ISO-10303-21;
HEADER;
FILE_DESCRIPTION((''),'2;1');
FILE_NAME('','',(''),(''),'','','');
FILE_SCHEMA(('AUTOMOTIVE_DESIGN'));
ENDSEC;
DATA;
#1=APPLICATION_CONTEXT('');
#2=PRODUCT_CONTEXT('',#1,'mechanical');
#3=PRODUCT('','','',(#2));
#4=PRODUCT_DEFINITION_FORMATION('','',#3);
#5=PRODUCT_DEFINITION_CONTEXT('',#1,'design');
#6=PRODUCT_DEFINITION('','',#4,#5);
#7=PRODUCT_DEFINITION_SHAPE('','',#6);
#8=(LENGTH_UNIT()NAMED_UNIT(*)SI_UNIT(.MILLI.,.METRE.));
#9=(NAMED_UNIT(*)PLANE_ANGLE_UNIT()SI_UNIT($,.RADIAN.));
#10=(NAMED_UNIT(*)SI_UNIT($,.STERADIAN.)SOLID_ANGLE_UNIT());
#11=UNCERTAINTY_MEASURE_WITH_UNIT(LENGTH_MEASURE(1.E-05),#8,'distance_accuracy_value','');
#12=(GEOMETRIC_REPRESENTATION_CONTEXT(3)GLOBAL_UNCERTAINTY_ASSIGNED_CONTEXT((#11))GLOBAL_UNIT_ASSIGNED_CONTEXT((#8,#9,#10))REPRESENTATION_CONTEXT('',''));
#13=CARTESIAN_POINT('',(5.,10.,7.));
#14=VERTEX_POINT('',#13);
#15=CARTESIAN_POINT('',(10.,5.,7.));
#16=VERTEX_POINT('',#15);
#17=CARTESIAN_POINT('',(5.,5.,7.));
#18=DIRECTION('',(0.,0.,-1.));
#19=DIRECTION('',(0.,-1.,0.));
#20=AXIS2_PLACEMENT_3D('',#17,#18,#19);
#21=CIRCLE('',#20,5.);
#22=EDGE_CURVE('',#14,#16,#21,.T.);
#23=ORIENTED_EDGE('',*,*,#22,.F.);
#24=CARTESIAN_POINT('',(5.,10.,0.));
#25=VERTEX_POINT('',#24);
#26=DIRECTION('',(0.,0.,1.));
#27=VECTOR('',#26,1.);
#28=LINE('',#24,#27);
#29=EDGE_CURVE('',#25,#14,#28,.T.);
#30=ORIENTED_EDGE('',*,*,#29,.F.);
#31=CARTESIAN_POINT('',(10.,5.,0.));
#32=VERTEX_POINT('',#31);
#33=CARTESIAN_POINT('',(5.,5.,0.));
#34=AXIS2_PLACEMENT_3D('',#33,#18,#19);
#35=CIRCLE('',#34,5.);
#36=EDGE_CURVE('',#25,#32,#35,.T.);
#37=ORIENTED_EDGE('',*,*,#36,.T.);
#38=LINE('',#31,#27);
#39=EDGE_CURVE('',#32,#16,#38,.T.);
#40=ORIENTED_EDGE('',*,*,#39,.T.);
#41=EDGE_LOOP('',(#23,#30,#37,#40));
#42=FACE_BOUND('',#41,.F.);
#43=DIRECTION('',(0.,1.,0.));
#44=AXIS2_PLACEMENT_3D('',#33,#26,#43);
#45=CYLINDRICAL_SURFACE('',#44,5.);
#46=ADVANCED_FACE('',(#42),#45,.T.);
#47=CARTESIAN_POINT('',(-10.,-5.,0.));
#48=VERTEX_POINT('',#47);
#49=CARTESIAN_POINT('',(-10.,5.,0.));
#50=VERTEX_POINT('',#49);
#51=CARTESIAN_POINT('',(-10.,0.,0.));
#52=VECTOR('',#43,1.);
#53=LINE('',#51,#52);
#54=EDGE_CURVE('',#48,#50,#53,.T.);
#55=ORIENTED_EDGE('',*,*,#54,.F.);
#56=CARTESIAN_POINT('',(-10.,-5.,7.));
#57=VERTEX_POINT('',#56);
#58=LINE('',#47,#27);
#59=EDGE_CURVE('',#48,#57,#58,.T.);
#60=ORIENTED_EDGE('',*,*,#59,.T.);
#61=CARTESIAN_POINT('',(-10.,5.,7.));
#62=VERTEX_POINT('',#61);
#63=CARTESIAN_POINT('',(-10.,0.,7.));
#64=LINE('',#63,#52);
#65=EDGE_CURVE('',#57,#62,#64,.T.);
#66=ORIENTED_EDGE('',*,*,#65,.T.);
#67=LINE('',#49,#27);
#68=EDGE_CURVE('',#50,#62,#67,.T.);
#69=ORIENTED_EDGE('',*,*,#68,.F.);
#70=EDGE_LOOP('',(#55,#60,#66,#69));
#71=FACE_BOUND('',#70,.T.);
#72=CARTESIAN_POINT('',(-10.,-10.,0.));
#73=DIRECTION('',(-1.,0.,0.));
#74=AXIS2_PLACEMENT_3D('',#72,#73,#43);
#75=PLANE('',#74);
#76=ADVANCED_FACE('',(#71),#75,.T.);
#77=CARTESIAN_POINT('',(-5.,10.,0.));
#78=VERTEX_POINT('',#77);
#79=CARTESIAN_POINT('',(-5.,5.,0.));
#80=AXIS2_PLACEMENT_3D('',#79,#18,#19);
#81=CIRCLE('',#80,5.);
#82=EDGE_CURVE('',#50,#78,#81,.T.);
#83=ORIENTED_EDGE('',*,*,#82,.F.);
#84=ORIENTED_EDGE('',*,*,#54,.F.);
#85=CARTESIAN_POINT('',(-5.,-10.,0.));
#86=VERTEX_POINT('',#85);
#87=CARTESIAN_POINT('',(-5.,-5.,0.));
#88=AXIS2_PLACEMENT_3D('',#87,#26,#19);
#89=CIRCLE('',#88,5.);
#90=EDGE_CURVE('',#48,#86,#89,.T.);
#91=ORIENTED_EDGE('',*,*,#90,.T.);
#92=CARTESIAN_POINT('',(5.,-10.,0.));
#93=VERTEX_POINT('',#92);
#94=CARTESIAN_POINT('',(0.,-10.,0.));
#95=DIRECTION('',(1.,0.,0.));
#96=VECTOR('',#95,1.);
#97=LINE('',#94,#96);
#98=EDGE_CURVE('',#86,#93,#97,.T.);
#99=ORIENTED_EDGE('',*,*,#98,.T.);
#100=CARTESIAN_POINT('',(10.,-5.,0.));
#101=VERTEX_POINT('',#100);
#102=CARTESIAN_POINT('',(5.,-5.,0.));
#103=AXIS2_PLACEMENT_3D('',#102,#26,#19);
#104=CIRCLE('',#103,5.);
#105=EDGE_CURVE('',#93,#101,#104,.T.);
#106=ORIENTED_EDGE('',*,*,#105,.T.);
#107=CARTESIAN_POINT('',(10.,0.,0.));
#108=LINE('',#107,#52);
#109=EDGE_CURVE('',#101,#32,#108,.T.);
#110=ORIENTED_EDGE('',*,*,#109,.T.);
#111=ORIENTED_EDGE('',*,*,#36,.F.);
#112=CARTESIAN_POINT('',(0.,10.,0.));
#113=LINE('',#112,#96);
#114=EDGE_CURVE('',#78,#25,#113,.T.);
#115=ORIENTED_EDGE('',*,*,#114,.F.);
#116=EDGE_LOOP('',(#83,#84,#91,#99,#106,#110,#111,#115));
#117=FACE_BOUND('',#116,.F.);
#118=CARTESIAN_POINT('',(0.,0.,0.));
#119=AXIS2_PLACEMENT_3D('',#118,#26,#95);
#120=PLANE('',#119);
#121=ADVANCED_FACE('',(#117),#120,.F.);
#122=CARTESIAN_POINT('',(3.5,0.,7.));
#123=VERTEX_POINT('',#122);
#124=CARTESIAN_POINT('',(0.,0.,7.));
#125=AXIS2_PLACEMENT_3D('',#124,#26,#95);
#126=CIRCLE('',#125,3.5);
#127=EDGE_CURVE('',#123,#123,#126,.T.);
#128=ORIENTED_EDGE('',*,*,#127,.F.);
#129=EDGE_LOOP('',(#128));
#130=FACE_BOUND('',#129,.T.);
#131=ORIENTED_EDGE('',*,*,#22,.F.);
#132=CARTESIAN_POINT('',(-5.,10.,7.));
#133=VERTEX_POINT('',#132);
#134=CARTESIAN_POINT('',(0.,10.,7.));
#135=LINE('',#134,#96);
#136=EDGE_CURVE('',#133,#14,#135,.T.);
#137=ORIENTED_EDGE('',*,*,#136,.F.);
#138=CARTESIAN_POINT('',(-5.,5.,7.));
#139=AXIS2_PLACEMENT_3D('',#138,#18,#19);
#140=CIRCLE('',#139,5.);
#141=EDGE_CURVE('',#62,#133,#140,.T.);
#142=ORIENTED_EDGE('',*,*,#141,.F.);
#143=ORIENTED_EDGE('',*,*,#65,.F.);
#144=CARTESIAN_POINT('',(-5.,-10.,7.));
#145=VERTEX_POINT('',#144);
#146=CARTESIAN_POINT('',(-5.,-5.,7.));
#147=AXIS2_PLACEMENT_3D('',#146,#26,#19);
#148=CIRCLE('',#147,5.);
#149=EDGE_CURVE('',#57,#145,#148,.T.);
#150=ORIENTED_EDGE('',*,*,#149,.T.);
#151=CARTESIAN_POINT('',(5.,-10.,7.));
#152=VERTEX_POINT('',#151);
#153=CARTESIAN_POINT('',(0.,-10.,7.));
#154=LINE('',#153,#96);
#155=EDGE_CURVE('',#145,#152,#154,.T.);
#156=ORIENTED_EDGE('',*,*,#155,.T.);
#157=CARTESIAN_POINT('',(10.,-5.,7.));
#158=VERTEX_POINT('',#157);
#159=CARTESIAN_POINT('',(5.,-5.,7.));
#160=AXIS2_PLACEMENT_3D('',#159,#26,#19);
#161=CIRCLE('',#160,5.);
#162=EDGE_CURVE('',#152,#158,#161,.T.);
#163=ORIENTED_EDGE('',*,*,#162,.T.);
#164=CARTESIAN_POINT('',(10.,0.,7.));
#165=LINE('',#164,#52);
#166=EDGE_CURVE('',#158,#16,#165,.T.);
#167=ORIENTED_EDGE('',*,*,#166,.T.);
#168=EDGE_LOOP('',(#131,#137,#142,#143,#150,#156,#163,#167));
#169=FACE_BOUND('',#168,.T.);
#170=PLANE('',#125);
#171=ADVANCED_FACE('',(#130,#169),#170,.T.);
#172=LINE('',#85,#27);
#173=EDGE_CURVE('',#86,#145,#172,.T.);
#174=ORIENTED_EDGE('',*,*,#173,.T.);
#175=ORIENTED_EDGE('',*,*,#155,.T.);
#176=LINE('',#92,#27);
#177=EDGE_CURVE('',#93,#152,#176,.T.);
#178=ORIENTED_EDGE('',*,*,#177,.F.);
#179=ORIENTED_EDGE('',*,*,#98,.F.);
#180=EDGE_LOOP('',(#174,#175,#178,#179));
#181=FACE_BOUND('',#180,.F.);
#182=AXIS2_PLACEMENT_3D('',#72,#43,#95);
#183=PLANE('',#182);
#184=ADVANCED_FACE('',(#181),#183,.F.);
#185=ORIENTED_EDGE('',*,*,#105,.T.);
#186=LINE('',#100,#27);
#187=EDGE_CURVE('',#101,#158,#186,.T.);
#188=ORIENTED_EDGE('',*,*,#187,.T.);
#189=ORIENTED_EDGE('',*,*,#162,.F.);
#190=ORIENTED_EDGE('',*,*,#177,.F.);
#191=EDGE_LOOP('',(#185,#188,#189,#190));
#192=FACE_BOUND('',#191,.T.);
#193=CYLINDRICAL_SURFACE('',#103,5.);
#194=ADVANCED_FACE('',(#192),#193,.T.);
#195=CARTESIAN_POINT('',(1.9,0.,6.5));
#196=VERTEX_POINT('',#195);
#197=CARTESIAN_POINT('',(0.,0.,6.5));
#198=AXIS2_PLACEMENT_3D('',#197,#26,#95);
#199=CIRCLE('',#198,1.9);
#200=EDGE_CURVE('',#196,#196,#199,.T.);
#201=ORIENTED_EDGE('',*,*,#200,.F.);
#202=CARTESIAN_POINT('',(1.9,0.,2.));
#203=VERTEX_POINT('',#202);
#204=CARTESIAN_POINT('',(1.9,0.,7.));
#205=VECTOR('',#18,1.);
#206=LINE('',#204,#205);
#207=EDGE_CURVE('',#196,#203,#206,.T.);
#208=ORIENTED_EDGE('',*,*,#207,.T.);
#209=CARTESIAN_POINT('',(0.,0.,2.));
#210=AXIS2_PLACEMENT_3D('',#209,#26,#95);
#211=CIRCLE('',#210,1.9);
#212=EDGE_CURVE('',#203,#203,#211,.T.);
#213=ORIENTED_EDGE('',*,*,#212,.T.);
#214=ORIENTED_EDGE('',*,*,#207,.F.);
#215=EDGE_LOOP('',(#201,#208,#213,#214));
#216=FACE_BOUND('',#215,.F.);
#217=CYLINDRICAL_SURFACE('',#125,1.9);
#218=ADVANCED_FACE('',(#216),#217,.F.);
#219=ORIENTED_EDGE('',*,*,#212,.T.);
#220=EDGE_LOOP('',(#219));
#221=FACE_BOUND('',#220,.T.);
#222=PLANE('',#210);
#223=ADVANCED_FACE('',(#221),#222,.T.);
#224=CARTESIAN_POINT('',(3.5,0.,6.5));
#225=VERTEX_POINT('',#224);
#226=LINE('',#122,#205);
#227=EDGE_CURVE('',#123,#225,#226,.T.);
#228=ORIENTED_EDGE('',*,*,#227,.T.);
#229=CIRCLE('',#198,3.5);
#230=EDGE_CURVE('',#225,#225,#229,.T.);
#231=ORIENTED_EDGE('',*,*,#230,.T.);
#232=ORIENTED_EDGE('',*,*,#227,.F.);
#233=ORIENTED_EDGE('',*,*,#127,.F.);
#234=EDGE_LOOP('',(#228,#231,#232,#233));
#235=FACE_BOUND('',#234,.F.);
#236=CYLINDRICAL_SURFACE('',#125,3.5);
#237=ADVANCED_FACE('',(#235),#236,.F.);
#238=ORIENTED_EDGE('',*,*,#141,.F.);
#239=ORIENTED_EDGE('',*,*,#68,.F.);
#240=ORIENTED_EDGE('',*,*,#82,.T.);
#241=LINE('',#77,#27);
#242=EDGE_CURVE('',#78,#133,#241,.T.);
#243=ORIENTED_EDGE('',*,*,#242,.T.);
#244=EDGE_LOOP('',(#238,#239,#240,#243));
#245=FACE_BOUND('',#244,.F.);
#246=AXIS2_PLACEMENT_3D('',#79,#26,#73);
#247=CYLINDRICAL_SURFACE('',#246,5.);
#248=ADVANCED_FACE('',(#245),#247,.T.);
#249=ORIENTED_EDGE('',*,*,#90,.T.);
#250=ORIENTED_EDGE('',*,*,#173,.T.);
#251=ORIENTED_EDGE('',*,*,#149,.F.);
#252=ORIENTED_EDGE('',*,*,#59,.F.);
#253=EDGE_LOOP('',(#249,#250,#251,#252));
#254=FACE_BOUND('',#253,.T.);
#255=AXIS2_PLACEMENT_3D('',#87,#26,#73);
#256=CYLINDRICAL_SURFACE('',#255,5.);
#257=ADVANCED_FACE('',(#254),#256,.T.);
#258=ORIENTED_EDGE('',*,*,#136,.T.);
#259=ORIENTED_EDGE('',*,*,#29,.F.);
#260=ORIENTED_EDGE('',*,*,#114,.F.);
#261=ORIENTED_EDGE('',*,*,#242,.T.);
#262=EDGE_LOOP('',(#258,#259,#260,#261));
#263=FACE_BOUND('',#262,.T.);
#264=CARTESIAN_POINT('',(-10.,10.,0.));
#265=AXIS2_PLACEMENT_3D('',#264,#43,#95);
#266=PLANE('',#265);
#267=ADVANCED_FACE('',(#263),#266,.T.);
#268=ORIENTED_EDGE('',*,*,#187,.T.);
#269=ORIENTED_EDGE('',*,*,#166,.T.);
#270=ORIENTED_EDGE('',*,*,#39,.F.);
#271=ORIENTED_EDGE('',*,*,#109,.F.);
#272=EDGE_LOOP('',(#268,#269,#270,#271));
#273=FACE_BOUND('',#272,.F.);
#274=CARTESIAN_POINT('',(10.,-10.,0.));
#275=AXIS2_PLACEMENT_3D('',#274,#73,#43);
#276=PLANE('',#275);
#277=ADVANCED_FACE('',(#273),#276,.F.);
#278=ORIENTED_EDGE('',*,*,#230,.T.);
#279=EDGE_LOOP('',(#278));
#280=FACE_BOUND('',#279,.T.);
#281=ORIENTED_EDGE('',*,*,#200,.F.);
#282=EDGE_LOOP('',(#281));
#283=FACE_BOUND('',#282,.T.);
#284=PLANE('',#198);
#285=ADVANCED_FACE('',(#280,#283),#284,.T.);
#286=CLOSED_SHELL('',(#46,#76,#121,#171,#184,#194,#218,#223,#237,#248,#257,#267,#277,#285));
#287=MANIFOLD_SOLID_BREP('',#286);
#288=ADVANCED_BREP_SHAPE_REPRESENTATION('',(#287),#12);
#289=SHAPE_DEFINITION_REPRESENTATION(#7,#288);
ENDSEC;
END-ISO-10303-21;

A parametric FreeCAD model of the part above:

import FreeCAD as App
import Part
import Sketcher
Q = App.Units.Quantity


def edges_at(feature, points):
    """Names of the edges that pass closest to the given points."""
    edges = feature.Shape.Edges
    near = lambda p: min(range(len(edges)), key=lambda i: edges[i].distToShape(Part.Vertex(*p))[0])
    return sorted({f"Edge{near(p) + 1}" for p in points})

doc = App.newDocument("Part")
params = doc.addObject("Spreadsheet::Sheet", "Params")
for row, (alias, value) in enumerate([
    ("sketch1_width", "20 mm"),
    ("pad1_length", "7 mm"),
    ("sketch2_diameter", "3.8 mm"),
    ("pocket1_length", "5 mm"),
    ("sketch3_diameter", "7 mm"),
    ("pocket2_length", "0.5 mm"),
    ("fillet_radius", "5 mm"),
], start=1):
    params.set(f"A{row}", alias)
    params.set(f"B{row}", "=" + value)
    params.setAlias(f"B{row}", alias)

body = doc.addObject("PartDesign::Body", "Body")

# Sketch on XY plane
sketch1 = doc.addObject("Sketcher::SketchObject", "Sketch")
body.addObject(sketch1)
sketch1.AttachmentSupport = (doc.XY_Plane, [""])
sketch1.MapMode = "FlatFace"
sketch1.addGeometry(Part.LineSegment(App.Vector(-10, 10, 0), App.Vector(-10, -10, 0)), False)
sketch1.addGeometry(Part.LineSegment(App.Vector(-10, -10, 0), App.Vector(10, -10, 0)), False)
sketch1.addGeometry(Part.LineSegment(App.Vector(10, -10, 0), App.Vector(10, 10, 0)), False)
sketch1.addGeometry(Part.LineSegment(App.Vector(10, 10, 0), App.Vector(-10, 10, 0)), False)
sketch1.addConstraint(Sketcher.Constraint("Coincident", 0, 2, 1, 1))
sketch1.addConstraint(Sketcher.Constraint("Coincident", 1, 2, 2, 1))
sketch1.addConstraint(Sketcher.Constraint("Coincident", 2, 2, 3, 1))
sketch1.addConstraint(Sketcher.Constraint("Coincident", 3, 2, 0, 1))
sketch1.addConstraint(Sketcher.Constraint("Vertical", 0))
sketch1.addConstraint(Sketcher.Constraint("Horizontal", 1))
sketch1.addConstraint(Sketcher.Constraint("Vertical", 2))
sketch1.addConstraint(Sketcher.Constraint("Horizontal", 3))
sketch1.addConstraint(Sketcher.Constraint("Symmetric", 0, 2, 2, 2, -1, 1))
sketch1.addConstraint(Sketcher.Constraint("Equal", 3, 0))
sketch1.addConstraint(Sketcher.Constraint("DistanceX", 1, 1, 1, 2, Q("20 mm")))
sketch1.setExpression("Constraints[10]", "Params.sketch1_width")
pad1 = doc.addObject("PartDesign::Pad", "Pad")
body.addObject(pad1)
pad1.Profile = sketch1
pad1.setExpression("Length", "Params.pad1_length")

# Sketch on XY plane
sketch2 = doc.addObject("Sketcher::SketchObject", "Sketch001")
body.addObject(sketch2)
sketch2.AttachmentSupport = (doc.XY_Plane, [""])
sketch2.MapMode = "FlatFace"
sketch2.AttachmentOffset = App.Placement(App.Vector(0, 0, 7), App.Rotation())
sketch2.addGeometry(Part.Circle(App.Vector(0, 0, 0), App.Vector(0, 0, 1), 1.9), False)
sketch2.addConstraint(Sketcher.Constraint("Coincident", 0, 3, -1, 1))
sketch2.addConstraint(Sketcher.Constraint("Diameter", 0, Q("3.8 mm")))
sketch2.setExpression("Constraints[1]", "Params.sketch2_diameter")
pocket1 = doc.addObject("PartDesign::Pocket", "Pocket")
body.addObject(pocket1)
pocket1.Profile = sketch2
pocket1.setExpression("Length", "Params.pocket1_length")

# Sketch on XY plane
sketch3 = doc.addObject("Sketcher::SketchObject", "Sketch002")
body.addObject(sketch3)
sketch3.AttachmentSupport = (doc.XY_Plane, [""])
sketch3.MapMode = "FlatFace"
sketch3.AttachmentOffset = App.Placement(App.Vector(0, 0, 7), App.Rotation())
sketch3.addGeometry(Part.Circle(App.Vector(0, 0, 0), App.Vector(0, 0, 1), 3.5), False)
sketch3.addConstraint(Sketcher.Constraint("Coincident", 0, 3, -1, 1))
sketch3.addConstraint(Sketcher.Constraint("Diameter", 0, Q("7 mm")))
sketch3.setExpression("Constraints[1]", "Params.sketch3_diameter")
pocket2 = doc.addObject("PartDesign::Pocket", "Pocket001")
body.addObject(pocket2)
pocket2.Profile = sketch3
pocket2.setExpression("Length", "Params.pocket2_length")
doc.recompute()

fillet = doc.addObject("PartDesign::Fillet", "Fillet")
body.addObject(fillet)
fillet.Base = (pocket2, edges_at(pocket2, [
    (-10, -10, 3.5),
    (10, -10, 3.5),
    (10, 10, 3.5),
    (-10, 10, 3.5),
]))
fillet.setExpression("Radius", "Params.fillet_radius")

doc.recompute()
